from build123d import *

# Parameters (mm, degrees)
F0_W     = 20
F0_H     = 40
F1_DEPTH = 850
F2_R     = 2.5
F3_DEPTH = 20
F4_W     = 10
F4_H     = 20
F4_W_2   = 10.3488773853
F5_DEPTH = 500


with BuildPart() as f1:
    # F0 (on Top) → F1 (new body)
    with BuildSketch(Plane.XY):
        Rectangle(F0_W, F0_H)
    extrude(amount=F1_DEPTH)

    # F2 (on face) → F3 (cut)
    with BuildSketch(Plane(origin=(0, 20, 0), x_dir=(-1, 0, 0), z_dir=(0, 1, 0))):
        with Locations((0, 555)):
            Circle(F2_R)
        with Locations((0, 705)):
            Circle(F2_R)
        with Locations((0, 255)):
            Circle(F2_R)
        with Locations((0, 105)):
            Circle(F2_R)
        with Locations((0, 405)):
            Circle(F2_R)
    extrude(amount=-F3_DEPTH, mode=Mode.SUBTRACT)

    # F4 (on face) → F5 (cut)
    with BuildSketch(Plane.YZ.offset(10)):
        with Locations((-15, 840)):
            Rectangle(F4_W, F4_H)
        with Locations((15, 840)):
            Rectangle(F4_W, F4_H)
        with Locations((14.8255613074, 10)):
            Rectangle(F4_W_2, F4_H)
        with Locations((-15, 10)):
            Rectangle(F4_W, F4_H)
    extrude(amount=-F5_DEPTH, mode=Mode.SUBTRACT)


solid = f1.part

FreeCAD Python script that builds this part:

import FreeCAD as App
import Part
import Sketcher
from FreeCAD import Vector
Q = App.Units.Quantity

doc = App.newDocument("Part")
body = doc.addObject("PartDesign::Body", "Body")

# Sketch on XY plane
sketch1 = doc.addObject("Sketcher::SketchObject", "Sketch")
body.addObject(sketch1)
sketch1.AttachmentSupport = (doc.XY_Plane, [""])
sketch1.MapMode = "FlatFace"
sketch1.addGeometry(Part.LineSegment(Vector(-10, 20, 0), Vector(-10, -20, 0)), False)
sketch1.addGeometry(Part.LineSegment(Vector(-10, -20, 0), Vector(10, -20, 0)), False)
sketch1.addGeometry(Part.LineSegment(Vector(10, -20, 0), Vector(10, 20, 0)), False)
sketch1.addGeometry(Part.LineSegment(Vector(10, 20, 0), Vector(-10, 20, 0)), False)
sketch1.addConstraint(Sketcher.Constraint("Coincident", 0, 2, 1, 1))
sketch1.addConstraint(Sketcher.Constraint("Coincident", 1, 2, 2, 1))
sketch1.addConstraint(Sketcher.Constraint("Coincident", 2, 2, 3, 1))
sketch1.addConstraint(Sketcher.Constraint("Coincident", 3, 2, 0, 1))
sketch1.addConstraint(Sketcher.Constraint("Vertical", 0))
sketch1.addConstraint(Sketcher.Constraint("Horizontal", 1))
sketch1.addConstraint(Sketcher.Constraint("Vertical", 2))
sketch1.addConstraint(Sketcher.Constraint("Horizontal", 3))
sketch1.addConstraint(Sketcher.Constraint("Symmetric", 0, 2, 2, 2, -1, 1))
sketch1.addConstraint(Sketcher.Constraint("DistanceX", 1, 1, 1, 2, Q("20 mm")))
sketch1.addConstraint(Sketcher.Constraint("DistanceY", 0, 2, 0, 1, Q("40 mm")))
pad1 = doc.addObject("PartDesign::Pad", "Pad")
body.addObject(pad1)
pad1.Profile = sketch1
pad1.Length = 850

# Sketch on XZ plane
sketch2 = doc.addObject("Sketcher::SketchObject", "Sketch001")
body.addObject(sketch2)
sketch2.AttachmentSupport = (doc.XZ_Plane, [""])
sketch2.MapMode = "FlatFace"
sketch2.AttachmentOffset = App.Placement(Vector(0, 0, -20), App.Rotation())
sketch2.addGeometry(Part.Circle(Vector(0, 555, 0), Vector(0, 0, 1), 2.5), False)
sketch2.addGeometry(Part.Circle(Vector(0, 705, 0), Vector(0, 0, 1), 2.5), False)
sketch2.addGeometry(Part.Circle(Vector(0, 255, 0), Vector(0, 0, 1), 2.5), False)
sketch2.addGeometry(Part.Circle(Vector(0, 105, 0), Vector(0, 0, 1), 2.5), False)
sketch2.addGeometry(Part.Circle(Vector(0, 405, 0), Vector(0, 0, 1), 2.5), False)
sketch2.addConstraint(Sketcher.Constraint("Equal", 0, 1))
sketch2.addConstraint(Sketcher.Constraint("Equal", 1, 2))
sketch2.addConstraint(Sketcher.Constraint("Equal", 2, 3))
sketch2.addConstraint(Sketcher.Constraint("Equal", 3, 4))
sketch2.addConstraint(Sketcher.Constraint("PointOnObject", 0, 3, -2))
sketch2.addConstraint(Sketcher.Constraint("PointOnObject", 1, 3, -2))
sketch2.addConstraint(Sketcher.Constraint("PointOnObject", 2, 3, -2))
sketch2.addConstraint(Sketcher.Constraint("PointOnObject", 3, 3, -2))
sketch2.addConstraint(Sketcher.Constraint("PointOnObject", 4, 3, -2))
sketch2.addConstraint(Sketcher.Constraint("Diameter", 0, Q("5 mm")))
sketch2.addConstraint(Sketcher.Constraint("DistanceY", -1, 1, 0, 3, Q("555 mm")))
sketch2.addConstraint(Sketcher.Constraint("DistanceY", -1, 1, 1, 3, Q("705 mm")))
sketch2.addConstraint(Sketcher.Constraint("DistanceY", -1, 1, 2, 3, Q("255 mm")))
sketch2.addConstraint(Sketcher.Constraint("DistanceY", -1, 1, 3, 3, Q("105 mm")))
sketch2.addConstraint(Sketcher.Constraint("DistanceY", -1, 1, 4, 3, Q("405 mm")))
pocket1 = doc.addObject("PartDesign::Pocket", "Pocket")
body.addObject(pocket1)
pocket1.Profile = sketch2
pocket1.Length = 20
pocket1.Reversed = True

# Sketch on YZ plane
sketch3 = doc.addObject("Sketcher::SketchObject", "Sketch002")
body.addObject(sketch3)
sketch3.AttachmentSupport = (doc.YZ_Plane, [""])
sketch3.MapMode = "FlatFace"
sketch3.AttachmentOffset = App.Placement(Vector(0, 0, 10), App.Rotation())
sketch3.addGeometry(Part.LineSegment(Vector(-20, 850, 0), Vector(-20, 830, 0)), False)
sketch3.addGeometry(Part.LineSegment(Vector(-20, 830, 0), Vector(-10, 830, 0)), False)
sketch3.addGeometry(Part.LineSegment(Vector(-10, 830, 0), Vector(-10, 850, 0)), False)
sketch3.addGeometry(Part.LineSegment(Vector(-10, 850, 0), Vector(-20, 850, 0)), False)
sketch3.addGeometry(Part.LineSegment(Vector(10, 850, 0), Vector(10, 830, 0)), False)
sketch3.addGeometry(Part.LineSegment(Vector(10, 830, 0), Vector(20, 830, 0)), False)
sketch3.addGeometry(Part.LineSegment(Vector(20, 830, 0), Vector(20, 850, 0)), False)
sketch3.addGeometry(Part.LineSegment(Vector(20, 850, 0), Vector(10, 850, 0)), False)
sketch3.addGeometry(Part.LineSegment(Vector(10, 20, 0), Vector(10, 0, 0)), False)
sketch3.addGeometry(Part.LineSegment(Vector(10, 0, 0), Vector(20, 0, 0)), False)
sketch3.addGeometry(Part.LineSegment(Vector(20, 0, 0), Vector(20, 20, 0)), False)
sketch3.addGeometry(Part.LineSegment(Vector(20, 20, 0), Vector(10, 20, 0)), False)
sketch3.addGeometry(Part.LineSegment(Vector(-20, 20, 0), Vector(-20, 0, 0)), False)
sketch3.addGeometry(Part.LineSegment(Vector(-20, 0, 0), Vector(-10, 0, 0)), False)
sketch3.addGeometry(Part.LineSegment(Vector(-10, 0, 0), Vector(-10, 20, 0)), False)
sketch3.addGeometry(Part.LineSegment(Vector(-10, 20, 0), Vector(-20, 20, 0)), False)
sketch3.addConstraint(Sketcher.Constraint("Coincident", 0, 2, 1, 1))
sketch3.addConstraint(Sketcher.Constraint("Coincident", 1, 2, 2, 1))
sketch3.addConstraint(Sketcher.Constraint("Coincident", 2, 2, 3, 1))
sketch3.addConstraint(Sketcher.Constraint("Coincident", 3, 2, 0, 1))
sketch3.addConstraint(Sketcher.Constraint("Coincident", 4, 2, 5, 1))
sketch3.addConstraint(Sketcher.Constraint("Coincident", 5, 2, 6, 1))
sketch3.addConstraint(Sketcher.Constraint("Coincident", 6, 2, 7, 1))
sketch3.addConstraint(Sketcher.Constraint("Coincident", 7, 2, 4, 1))
sketch3.addConstraint(Sketcher.Constraint("Coincident", 8, 2, 9, 1))
sketch3.addConstraint(Sketcher.Constraint("Coincident", 9, 2, 10, 1))
sketch3.addConstraint(Sketcher.Constraint("Coincident", 10, 2, 11, 1))
sketch3.addConstraint(Sketcher.Constraint("Coincident", 11, 2, 8, 1))
sketch3.addConstraint(Sketcher.Constraint("Coincident", 12, 2, 13, 1))
sketch3.addConstraint(Sketcher.Constraint("Coincident", 13, 2, 14, 1))
sketch3.addConstraint(Sketcher.Constraint("Coincident", 14, 2, 15, 1))
sketch3.addConstraint(Sketcher.Constraint("Coincident", 15, 2, 12, 1))
sketch3.addConstraint(Sketcher.Constraint("Vertical", 0))
sketch3.addConstraint(Sketcher.Constraint("Horizontal", 1))
sketch3.addConstraint(Sketcher.Constraint("Vertical", 2))
sketch3.addConstraint(Sketcher.Constraint("Horizontal", 3))
sketch3.addConstraint(Sketcher.Constraint("Vertical", 4))
sketch3.addConstraint(Sketcher.Constraint("Horizontal", 5))
sketch3.addConstraint(Sketcher.Constraint("Vertical", 6))
sketch3.addConstraint(Sketcher.Constraint("Horizontal", 7))
sketch3.addConstraint(Sketcher.Constraint("Vertical", 8))
sketch3.addConstraint(Sketcher.Constraint("Horizontal", 9))
sketch3.addConstraint(Sketcher.Constraint("Vertical", 10))
sketch3.addConstraint(Sketcher.Constraint("Horizontal", 11))
sketch3.addConstraint(Sketcher.Constraint("Vertical", 12))
sketch3.addConstraint(Sketcher.Constraint("Horizontal", 13))
sketch3.addConstraint(Sketcher.Constraint("Vertical", 14))
sketch3.addConstraint(Sketcher.Constraint("Horizontal", 15))
sketch3.addConstraint(Sketcher.Constraint("Symmetric", 9, 2, 12, 2, -1, 1))
sketch3.addConstraint(Sketcher.Constraint("Symmetric", 1, 2, 4, 2, -2))
sketch3.addConstraint(Sketcher.Constraint("Symmetric", 3, 2, 6, 2, -2))
sketch3.addConstraint(Sketcher.Constraint("PointOnObject", 8, 2, -1))
sketch3.addConstraint(Sketcher.Constraint("Horizontal", 11, 2, 14, 2))
sketch3.addConstraint(Sketcher.Constraint("Vertical", 6, 2, 9, 2))
sketch3.addConstraint(Sketcher.Constraint("Vertical", 2, 2, 13, 2))
sketch3.addConstraint(Sketcher.Constraint("Equal", 6, 8))
sketch3.addConstraint(Sketcher.Constraint("DistanceX", 1, 1, 1, 2, Q("10 mm")))
sketch3.addConstraint(Sketcher.Constraint("DistanceY", 0, 2, 0, 1, Q("20 mm")))
sketch3.addConstraint(Sketcher.Constraint("DistanceX", 0, 2, -1, 1, Q("20 mm")))
sketch3.addConstraint(Sketcher.Constraint("DistanceY", -1, 1, 0, 2, Q("830 mm")))
sketch3.addConstraint(Sketcher.Constraint("DistanceX", 9, 1, 9, 2, Q("10.348877 mm")))
pocket2 = doc.addObject("PartDesign::Pocket", "Pocket001")
body.addObject(pocket2)
pocket2.Profile = sketch3
pocket2.Length = 500

doc.recompute()
